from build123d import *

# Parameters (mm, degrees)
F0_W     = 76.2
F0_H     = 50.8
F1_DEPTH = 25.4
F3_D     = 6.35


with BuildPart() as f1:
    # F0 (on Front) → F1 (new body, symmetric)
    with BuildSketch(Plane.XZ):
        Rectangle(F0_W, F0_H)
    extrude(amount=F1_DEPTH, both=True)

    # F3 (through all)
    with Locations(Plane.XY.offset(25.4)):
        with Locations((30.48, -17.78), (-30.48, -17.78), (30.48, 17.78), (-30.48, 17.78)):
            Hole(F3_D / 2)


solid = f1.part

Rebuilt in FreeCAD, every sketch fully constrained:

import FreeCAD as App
import Part
import Sketcher
from FreeCAD import Vector
Q = App.Units.Quantity


def add_polygon(sketch, points):
    """Adds a closed chain of lines whose ends are joined by coincident constraints."""
    first, n = sketch.GeometryCount, len(points)
    for a, b in zip(points, points[1:] + points[:1]):
        sketch.addGeometry(Part.LineSegment(App.Vector(*a, 0), App.Vector(*b, 0)), False)
    for i in range(n):
        sketch.addConstraint(Sketcher.Constraint("Coincident", first + i, 2, first + (i + 1) % n, 1))

doc = App.newDocument("Part")
params = doc.addObject("Spreadsheet::Sheet", "Params")
for row, (alias, value) in enumerate([
    ("sketch1_width", "3 in"),
    ("sketch1_height", "2 in"),
    ("pad1_length", "2 in"),
    ("sketch2_diameter", "0.25 in"),
    ("hole_diameter", "0.25 in"),
], start=1):
    params.set(f"A{row}", alias)
    params.set(f"B{row}", "=" + value)
    params.setAlias(f"B{row}", alias)

body = doc.addObject("PartDesign::Body", "Body")

# Sketch on XZ plane
sketch1 = body.newObject("Sketcher::SketchObject", "Sketch")
sketch1.AttachmentSupport = (doc.getObject("XZ_Plane"), [""])
sketch1.MapMode = "FlatFace"
add_polygon(sketch1, [(-38.1, 25.4), (-38.1, -25.4), (38.1, -25.4), (38.1, 25.4)])  # lines 0-3
sketch1.addConstraint(Sketcher.Constraint("Vertical", 0))
sketch1.addConstraint(Sketcher.Constraint("Horizontal", 1))
sketch1.addConstraint(Sketcher.Constraint("Vertical", 2))
sketch1.addConstraint(Sketcher.Constraint("Horizontal", 3))
sketch1.addConstraint(Sketcher.Constraint("Symmetric", 0, 2, 2, 2, -1, 1))
sketch1.addConstraint(Sketcher.Constraint("DistanceX", 1, 1, 1, 2, Q("3 in")))
sketch1.addConstraint(Sketcher.Constraint("DistanceY", 0, 2, 0, 1, Q("2 in")))
sketch1.setExpression("Constraints[9]", "Params.sketch1_width")
sketch1.setExpression("Constraints[10]", "Params.sketch1_height")
pad1 = body.newObject("PartDesign::Pad", "Pad")
pad1.Profile = sketch1
pad1.setExpression("Length", "Params.pad1_length")
pad1.Midplane = True

# Sketch on XY plane
sketch2 = body.newObject("Sketcher::SketchObject", "Sketch001")
sketch2.AttachmentSupport = (doc.getObject("XY_Plane"), [""])
sketch2.MapMode = "FlatFace"
sketch2.AttachmentOffset = App.Placement(Vector(0, 0, 1 * 25.4), App.Rotation())
sketch2.addGeometry(Part.Circle(Vector(30.48, -17.78, 0), Vector(0, 0, 1), 3.175), False)
sketch2.addGeometry(Part.Circle(Vector(-30.48, -17.78, 0), Vector(0, 0, 1), 3.175), False)
sketch2.addGeometry(Part.Circle(Vector(30.48, 17.78, 0), Vector(0, 0, 1), 3.175), False)
sketch2.addGeometry(Part.Circle(Vector(-30.48, 17.78, 0), Vector(0, 0, 1), 3.175), False)
sketch2.addConstraint(Sketcher.Constraint("Equal", 0, 1))
sketch2.addConstraint(Sketcher.Constraint("Equal", 1, 2))
sketch2.addConstraint(Sketcher.Constraint("Equal", 2, 3))
sketch2.addConstraint(Sketcher.Constraint("Symmetric", 1, 3, 2, 3, -1, 1))
sketch2.addConstraint(Sketcher.Constraint("Symmetric", 0, 3, 3, 3, -1, 1))
sketch2.addConstraint(Sketcher.Constraint("Symmetric", 0, 3, 1, 3, -2))
sketch2.addConstraint(Sketcher.Constraint("Diameter", 0, Q("0.25 in")))
sketch2.addConstraint(Sketcher.Constraint("DistanceX", -1, 1, 0, 3, Q("1.2 in")))
sketch2.addConstraint(Sketcher.Constraint("DistanceY", 0, 3, -1, 1, Q("0.7 in")))
sketch2.setExpression("Constraints[6]", "Params.sketch2_diameter")
doc.recompute()
hole = body.newObject("PartDesign::Hole", "Hole")
hole.Profile = sketch2
hole.ThreadType = "None"
hole.setExpression("Diameter", "Params.hole_diameter")
hole.DepthType = "ThroughAll"

doc.recompute()
